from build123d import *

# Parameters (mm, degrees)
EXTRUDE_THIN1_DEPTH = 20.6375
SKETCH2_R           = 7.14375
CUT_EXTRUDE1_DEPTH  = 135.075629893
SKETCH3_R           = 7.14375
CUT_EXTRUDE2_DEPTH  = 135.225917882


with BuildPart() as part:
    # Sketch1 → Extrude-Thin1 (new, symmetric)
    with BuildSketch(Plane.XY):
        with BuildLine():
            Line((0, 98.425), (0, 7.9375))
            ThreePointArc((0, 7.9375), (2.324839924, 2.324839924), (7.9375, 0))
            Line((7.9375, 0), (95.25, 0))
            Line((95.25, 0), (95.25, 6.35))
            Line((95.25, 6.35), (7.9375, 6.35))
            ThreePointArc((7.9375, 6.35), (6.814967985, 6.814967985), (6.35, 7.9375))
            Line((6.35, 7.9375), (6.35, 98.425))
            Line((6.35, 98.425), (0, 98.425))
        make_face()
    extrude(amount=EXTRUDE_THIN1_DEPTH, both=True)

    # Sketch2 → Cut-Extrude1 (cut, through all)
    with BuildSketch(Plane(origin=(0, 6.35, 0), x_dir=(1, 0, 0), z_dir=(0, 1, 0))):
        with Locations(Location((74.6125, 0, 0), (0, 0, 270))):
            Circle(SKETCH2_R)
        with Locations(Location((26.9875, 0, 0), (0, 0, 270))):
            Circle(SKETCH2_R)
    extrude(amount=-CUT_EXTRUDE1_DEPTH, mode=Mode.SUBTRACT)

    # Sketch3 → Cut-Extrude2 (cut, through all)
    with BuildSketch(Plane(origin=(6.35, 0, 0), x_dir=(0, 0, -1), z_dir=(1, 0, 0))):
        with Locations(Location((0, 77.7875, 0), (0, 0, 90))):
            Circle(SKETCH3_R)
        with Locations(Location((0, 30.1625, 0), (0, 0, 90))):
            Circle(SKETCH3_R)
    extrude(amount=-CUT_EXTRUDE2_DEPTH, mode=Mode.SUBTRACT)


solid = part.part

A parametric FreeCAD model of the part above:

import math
import FreeCAD as App
import Part
import Sketcher
from FreeCAD import Vector
Q = App.Units.Quantity

doc = App.newDocument("Part")
body = doc.addObject("PartDesign::Body", "Body")

# Sketch on XY plane
sketch1 = body.newObject("Sketcher::SketchObject", "Sketch")
sketch1.AttachmentSupport = (doc.getObject("XY_Plane"), [""])
sketch1.MapMode = "FlatFace"
sketch1.addGeometry([
    Part.LineSegment(Vector(0, 98.4, 0), Vector(0, 7.9, 0)),  # 0
    Part.ArcOfCircle(Part.Circle(Vector(7.9, 7.9, 0), Vector(0, 0, 1), 7.9), math.radians(180), math.radians(270)),  # 1
    Part.LineSegment(Vector(7.9, 0, 0), Vector(95.2, 0, 0)),  # 2
    Part.LineSegment(Vector(95.2, 0, 0), Vector(95.2, 6.3, 0)),  # 3
    Part.LineSegment(Vector(95.2, 6.3, 0), Vector(7.9, 6.3, 0)),  # 4
    Part.ArcOfCircle(Part.Circle(Vector(7.9, 7.9, 0), Vector(0, 0, 1), 1.6), math.radians(180), math.radians(270)),  # 5
    Part.LineSegment(Vector(6.3, 7.9, 0), Vector(6.3, 98.4, 0)),  # 6
    Part.LineSegment(Vector(6.3, 98.4, 0), Vector(0, 98.4, 0)),  # 7
], False)
sketch1.addConstraint([
    Sketcher.Constraint("Tangent", 0, 2, 1, 1),
    Sketcher.Constraint("Tangent", 1, 2, 2, 1),
    Sketcher.Constraint("Coincident", 2, 2, 3, 1),
    Sketcher.Constraint("Coincident", 3, 2, 4, 1),
    Sketcher.Constraint("Tangent", 4, 2, 5, 2),
    Sketcher.Constraint("Tangent", 5, 1, 6, 1),
    Sketcher.Constraint("Coincident", 6, 2, 7, 1),
    Sketcher.Constraint("Coincident", 7, 2, 0, 1),
    Sketcher.Constraint("Vertical", 0),
    Sketcher.Constraint("Horizontal", 2),
    Sketcher.Constraint("Vertical", 3),
    Sketcher.Constraint("Horizontal", 4),
    Sketcher.Constraint("Vertical", 6),
    Sketcher.Constraint("Horizontal", 7),
    Sketcher.Constraint("Coincident", 5, 3, 1, 3),
    Sketcher.Constraint("PointOnObject", 0, 2, -2),
    Sketcher.Constraint("PointOnObject", 1, 2, -1),
    Sketcher.Constraint("Radius", 1, Q("0.3125 in")),
    Sketcher.Constraint("Radius", 5, Q("0.0625 in")),
    Sketcher.Constraint("DistanceX", 2, 1, 2, 2, Q("3.4375 in")),
    Sketcher.Constraint("DistanceY", 0, 2, 0, 1, Q("3.5625 in")),
])
pad1 = body.newObject("PartDesign::Pad", "Pad")
pad1.Profile = sketch1
pad1.Length = Q("1.625 in")
pad1.Midplane = True

# Sketch on XZ plane
sketch2 = body.newObject("Sketcher::SketchObject", "Sketch001")
sketch2.AttachmentSupport = (doc.getObject("XZ_Plane"), [""])
sketch2.MapMode = "FlatFace"
sketch2.AttachmentOffset = App.Placement(Vector(0, 0, -0.25 * 25.4), App.Rotation())
sketch2.addGeometry([
    Part.Circle(Vector(75, 0, 0), Vector(0, 0, 1), 7),
    Part.Circle(Vector(27, 0, 0), Vector(0, 0, 1), 7),
], False)
sketch2.addConstraint([
    Sketcher.Constraint("Equal", 0, 1),
    Sketcher.Constraint("PointOnObject", 0, 3, -1),
    Sketcher.Constraint("PointOnObject", 1, 3, -1),
    Sketcher.Constraint("Diameter", 0, Q("0.5625 in")),
    Sketcher.Constraint("DistanceX", -1, 1, 0, 3, Q("2.9375 in")),
    Sketcher.Constraint("DistanceX", -1, 1, 1, 3, Q("1.0625 in")),
])
pocket1 = body.newObject("PartDesign::Pocket", "Pocket")
pocket1.Profile = sketch2
pocket1.Type = "ThroughAll"
pocket1.Reversed = True

# Sketch on YZ plane
sketch3 = body.newObject("Sketcher::SketchObject", "Sketch002")
sketch3.AttachmentSupport = (doc.getObject("YZ_Plane"), [""])
sketch3.MapMode = "FlatFace"
sketch3.AttachmentOffset = App.Placement(Vector(0, 0, 0.25 * 25.4), App.Rotation())
sketch3.addGeometry([
    Part.Circle(Vector(78, 0, 0), Vector(0, 0, 1), 7),
    Part.Circle(Vector(30, 0, 0), Vector(0, 0, 1), 7),
], False)
sketch3.addConstraint([
    Sketcher.Constraint("Equal", 0, 1),
    Sketcher.Constraint("PointOnObject", 0, 3, -1),
    Sketcher.Constraint("PointOnObject", 1, 3, -1),
    Sketcher.Constraint("Diameter", 0, Q("0.5625 in")),
    Sketcher.Constraint("DistanceX", -1, 1, 0, 3, Q("3.0625 in")),
    Sketcher.Constraint("DistanceX", -1, 1, 1, 3, Q("1.1875 in")),
])
pocket2 = body.newObject("PartDesign::Pocket", "Pocket001")
pocket2.Profile = sketch3
pocket2.Type = "ThroughAll"

doc.recompute()
